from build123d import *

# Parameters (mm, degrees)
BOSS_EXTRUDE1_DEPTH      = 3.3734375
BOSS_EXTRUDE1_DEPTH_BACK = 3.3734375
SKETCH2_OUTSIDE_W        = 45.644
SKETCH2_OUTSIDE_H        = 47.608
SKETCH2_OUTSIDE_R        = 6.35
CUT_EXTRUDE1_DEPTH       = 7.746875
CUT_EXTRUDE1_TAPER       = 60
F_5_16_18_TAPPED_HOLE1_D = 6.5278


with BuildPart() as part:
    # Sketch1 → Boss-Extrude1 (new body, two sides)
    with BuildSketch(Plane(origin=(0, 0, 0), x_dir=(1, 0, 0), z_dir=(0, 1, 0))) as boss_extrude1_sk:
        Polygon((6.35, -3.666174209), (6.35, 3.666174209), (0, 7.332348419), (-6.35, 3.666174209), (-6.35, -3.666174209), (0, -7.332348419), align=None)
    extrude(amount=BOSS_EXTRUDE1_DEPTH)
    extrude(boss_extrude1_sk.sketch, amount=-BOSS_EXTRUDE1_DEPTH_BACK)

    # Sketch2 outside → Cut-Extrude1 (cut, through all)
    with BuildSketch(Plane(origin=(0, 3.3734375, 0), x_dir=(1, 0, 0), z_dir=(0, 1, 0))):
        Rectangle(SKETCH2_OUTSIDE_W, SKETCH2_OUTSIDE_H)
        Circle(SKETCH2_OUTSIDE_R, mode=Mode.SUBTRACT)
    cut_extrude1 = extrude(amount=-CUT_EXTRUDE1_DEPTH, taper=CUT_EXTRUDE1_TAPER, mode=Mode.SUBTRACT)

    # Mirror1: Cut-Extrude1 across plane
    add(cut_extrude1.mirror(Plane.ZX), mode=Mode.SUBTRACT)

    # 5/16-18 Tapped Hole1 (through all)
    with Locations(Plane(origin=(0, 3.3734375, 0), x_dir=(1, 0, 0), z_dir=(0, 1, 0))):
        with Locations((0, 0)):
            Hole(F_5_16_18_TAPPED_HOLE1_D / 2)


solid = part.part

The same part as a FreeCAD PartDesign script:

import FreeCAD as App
import Part
import Sketcher
from FreeCAD import Vector
Q = App.Units.Quantity

doc = App.newDocument("Part")
body = doc.addObject("PartDesign::Body", "Body")

# Sketch on XZ plane
sketch1 = body.newObject("Sketcher::SketchObject", "Sketch")
sketch1.AttachmentSupport = (doc.getObject("XZ_Plane"), [""])
sketch1.MapMode = "FlatFace"
sketch1.addGeometry([
    Part.LineSegment(Vector(6, 4, 0), Vector(6, -4, 0)),  # 0
    Part.LineSegment(Vector(6, -4, 0), Vector(0, -7, 0)),  # 1
    Part.LineSegment(Vector(0, -7, 0), Vector(-6, -4, 0)),  # 2
    Part.LineSegment(Vector(-6, -4, 0), Vector(-6, 4, 0)),  # 3
    Part.LineSegment(Vector(-6, 4, 0), Vector(0, 7, 0)),  # 4
    Part.LineSegment(Vector(0, 7, 0), Vector(6, 4, 0)),  # 5
], False)
sketch1.addConstraint([
    Sketcher.Constraint("Coincident", 0, 2, 1, 1),
    Sketcher.Constraint("Coincident", 1, 2, 2, 1),
    Sketcher.Constraint("Coincident", 2, 2, 3, 1),
    Sketcher.Constraint("Coincident", 3, 2, 4, 1),
    Sketcher.Constraint("Coincident", 4, 2, 5, 1),
    Sketcher.Constraint("Coincident", 5, 2, 0, 1),
    Sketcher.Constraint("Vertical", 0),
    Sketcher.Constraint("Vertical", 3),
    Sketcher.Constraint("Symmetric", 0, 2, 3, 2, -1, 1),
    Sketcher.Constraint("Symmetric", 1, 2, 4, 2, -1, 1),
    Sketcher.Constraint("PointOnObject", 1, 2, -2),
    Sketcher.Constraint("Parallel", 2, 5),
    Sketcher.Constraint("Horizontal", 0, 2, 2, 2),
    Sketcher.Constraint("Angle", 1, Q("-150 deg")),
    Sketcher.Constraint("DistanceX", 2, 2, 0, 2, Q("0.5 in")),
    Sketcher.Constraint("DistanceY", 0, 2, 0, 1, 7.332348),
])
pad1 = body.newObject("PartDesign::Pad", "Pad")
pad1.Profile = sketch1
pad1.Type = "TwoLengths"
pad1.Length = 3.373438
pad1.Length2 = 3.373438
pad1.Reversed = True

# Sketch on XZ plane
sketch2 = body.newObject("Sketcher::SketchObject", "Sketch001")
sketch2.AttachmentSupport = (doc.getObject("XZ_Plane"), [""])
sketch2.MapMode = "FlatFace"
sketch2.AttachmentOffset = App.Placement(Vector(0, 0, -3.373438), App.Rotation())
sketch2.addGeometry([
    Part.LineSegment(Vector(-23, -24, 0), Vector(-23, 24, 0)),  # 0
    Part.LineSegment(Vector(-23, 24, 0), Vector(23, 24, 0)),  # 1
    Part.LineSegment(Vector(23, 24, 0), Vector(23, -24, 0)),  # 2
    Part.LineSegment(Vector(23, -24, 0), Vector(-23, -24, 0)),  # 3
    Part.Circle(Vector(0, 0, 0), Vector(0, 0, 1), 6),  # 4
], False)
sketch2.addConstraint([
    Sketcher.Constraint("Coincident", 0, 2, 1, 1),
    Sketcher.Constraint("Coincident", 1, 2, 2, 1),
    Sketcher.Constraint("Coincident", 2, 2, 3, 1),
    Sketcher.Constraint("Coincident", 3, 2, 0, 1),
    Sketcher.Constraint("Vertical", 0),
    Sketcher.Constraint("Horizontal", 1),
    Sketcher.Constraint("Vertical", 2),
    Sketcher.Constraint("Horizontal", 3),
    Sketcher.Constraint("Coincident", 4, 3, -1, 1),
    Sketcher.Constraint("Symmetric", 0, 2, 2, 2, -1, 1),
    Sketcher.Constraint("Diameter", 4, Q("0.5 in")),
    Sketcher.Constraint("DistanceX", 1, 1, 1, 2, 45.644),
    Sketcher.Constraint("DistanceY", 0, 1, 0, 2, 47.608),
])
pocket1 = body.newObject("PartDesign::Pocket", "Pocket")
pocket1.Profile = sketch2
pocket1.Length = 7.746875
pocket1.Reversed = True
pocket1.TaperAngle = 60
doc.recompute()

mirrored = body.newObject("PartDesign::Mirrored", "Mirrored")
mirrored.Originals = [pocket1]
mirrored.MirrorPlane = (doc.getObject("XZ_Plane"), [""])
body.Tip = mirrored

# Sketch on XZ plane
sketch3 = body.newObject("Sketcher::SketchObject", "Sketch002")
sketch3.AttachmentSupport = (doc.getObject("XZ_Plane"), [""])
sketch3.MapMode = "FlatFace"
sketch3.AttachmentOffset = App.Placement(Vector(0, 0, -3.373438), App.Rotation())
sketch3.addGeometry(Part.Circle(Vector(0, 0, 0), Vector(0, 0, 1), 3.3), False)
sketch3.addConstraint([
    Sketcher.Constraint("Coincident", 0, 3, -1, 1),
    Sketcher.Constraint("Diameter", 0, Q("0.257 in")),
])
doc.recompute()
hole = body.newObject("PartDesign::Hole", "Hole")
hole.Profile = sketch3
hole.ThreadType = "None"
hole.Diameter = Q("0.257 in")
hole.DepthType = "ThroughAll"
hole.Reversed = True

doc.recompute()
